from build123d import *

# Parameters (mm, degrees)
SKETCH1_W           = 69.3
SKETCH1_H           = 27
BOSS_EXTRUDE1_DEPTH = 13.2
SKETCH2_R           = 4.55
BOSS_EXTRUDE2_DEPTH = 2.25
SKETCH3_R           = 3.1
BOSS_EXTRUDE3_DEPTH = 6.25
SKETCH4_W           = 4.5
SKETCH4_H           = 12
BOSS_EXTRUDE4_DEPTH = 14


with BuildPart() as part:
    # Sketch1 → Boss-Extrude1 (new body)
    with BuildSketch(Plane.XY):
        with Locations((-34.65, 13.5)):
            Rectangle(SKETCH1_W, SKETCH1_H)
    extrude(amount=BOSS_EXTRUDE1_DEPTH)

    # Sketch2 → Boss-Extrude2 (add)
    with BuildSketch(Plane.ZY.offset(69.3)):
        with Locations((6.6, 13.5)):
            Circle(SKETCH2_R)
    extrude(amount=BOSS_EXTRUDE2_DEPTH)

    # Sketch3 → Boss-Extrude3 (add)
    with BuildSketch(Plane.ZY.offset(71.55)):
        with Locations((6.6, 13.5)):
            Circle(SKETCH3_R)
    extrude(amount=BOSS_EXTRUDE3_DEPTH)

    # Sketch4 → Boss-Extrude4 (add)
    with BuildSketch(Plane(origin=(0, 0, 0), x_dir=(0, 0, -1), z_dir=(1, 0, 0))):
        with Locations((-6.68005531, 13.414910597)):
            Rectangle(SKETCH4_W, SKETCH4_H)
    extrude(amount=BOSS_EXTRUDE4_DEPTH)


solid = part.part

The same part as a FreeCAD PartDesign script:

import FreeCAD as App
import Part
import Sketcher

V = App.Vector
Q = App.Units.Quantity

doc = App.newDocument("Part")
body = doc.addObject("PartDesign::Body", "Body")

# Sketch on XY plane
sketch1 = doc.addObject("Sketcher::SketchObject", "Sketch")
body.addObject(sketch1)
sketch1.AttachmentSupport = (doc.XY_Plane, [""])
sketch1.MapMode = "FlatFace"
sketch1.addGeometry([
    Part.LineSegment(V(-69, 27, 0), V(-69, 0, 0)),
    Part.LineSegment(V(-69, 0, 0), V(0, 0, 0)),
    Part.LineSegment(V(0, 0, 0), V(0, 27, 0)),
    Part.LineSegment(V(0, 27, 0), V(-69, 27, 0)),
], False)
sketch1.addConstraint([
    Sketcher.Constraint("Coincident", 0, 2, 1, 1),
    Sketcher.Constraint("Coincident", 1, 2, 2, 1),
    Sketcher.Constraint("Coincident", 2, 2, 3, 1),
    Sketcher.Constraint("Coincident", 3, 2, 0, 1),
    Sketcher.Constraint("Vertical", 0),
    Sketcher.Constraint("Horizontal", 1),
    Sketcher.Constraint("Vertical", 2),
    Sketcher.Constraint("Horizontal", 3),
    Sketcher.Constraint("Coincident", 1, 2, -1, 1),
    Sketcher.Constraint("DistanceY", 0, 2, 0, 1, Q("27 mm")),
    Sketcher.Constraint("DistanceX", 1, 1, 1, 2, Q("69.3 mm")),
])
pad1 = doc.addObject("PartDesign::Pad", "Pad")
body.addObject(pad1)
pad1.Profile = sketch1
pad1.Length = 13.2

# Sketch on YZ plane
sketch2 = doc.addObject("Sketcher::SketchObject", "Sketch001")
body.addObject(sketch2)
sketch2.AttachmentSupport = (doc.YZ_Plane, [""])
sketch2.MapMode = "FlatFace"
sketch2.AttachmentOffset = App.Placement(V(0, 0, -69.3), App.Rotation())
sketch2.addGeometry(Part.Circle(V(13.5, 6.6, 0), V(0, 0, 1), 4.5), False)
sketch2.addConstraint([
    Sketcher.Constraint("Diameter", 0, Q("9.1 mm")),
    Sketcher.Constraint("DistanceX", -1, 1, 0, 3, Q("13.5 mm")),
    Sketcher.Constraint("DistanceY", -1, 1, 0, 3, Q("6.6 mm")),
])
pad2 = doc.addObject("PartDesign::Pad", "Pad001")
body.addObject(pad2)
pad2.Profile = sketch2
pad2.Length = 2.25
pad2.Reversed = True

# Sketch on YZ plane
sketch3 = doc.addObject("Sketcher::SketchObject", "Sketch002")
body.addObject(sketch3)
sketch3.AttachmentSupport = (doc.YZ_Plane, [""])
sketch3.MapMode = "FlatFace"
sketch3.AttachmentOffset = App.Placement(V(0, 0, -71.55), App.Rotation())
sketch3.addGeometry(Part.Circle(V(13.5, 6.6, 0), V(0, 0, 1), 3.1), False)
sketch3.addConstraint([
    Sketcher.Constraint("Diameter", 0, Q("6.2 mm")),
    Sketcher.Constraint("DistanceX", -1, 1, 0, 3, Q("13.5 mm")),
    Sketcher.Constraint("DistanceY", -1, 1, 0, 3, Q("6.6 mm")),
])
pad3 = doc.addObject("PartDesign::Pad", "Pad002")
body.addObject(pad3)
pad3.Profile = sketch3
pad3.Length = 6.25
pad3.Reversed = True

# Sketch on YZ plane
sketch4 = doc.addObject("Sketcher::SketchObject", "Sketch003")
body.addObject(sketch4)
sketch4.AttachmentSupport = (doc.YZ_Plane, [""])
sketch4.MapMode = "FlatFace"
sketch4.addGeometry([
    Part.LineSegment(V(19.4, 8.9, 0), V(7.4, 8.9, 0)),
    Part.LineSegment(V(7.4, 8.9, 0), V(7.4, 4.4, 0)),
    Part.LineSegment(V(7.4, 4.4, 0), V(19.4, 4.4, 0)),
    Part.LineSegment(V(19.4, 4.4, 0), V(19.4, 8.9, 0)),
], False)
sketch4.addConstraint([
    Sketcher.Constraint("Coincident", 0, 2, 1, 1),
    Sketcher.Constraint("Coincident", 1, 2, 2, 1),
    Sketcher.Constraint("Coincident", 2, 2, 3, 1),
    Sketcher.Constraint("Coincident", 3, 2, 0, 1),
    Sketcher.Constraint("Horizontal", 0),
    Sketcher.Constraint("Vertical", 1),
    Sketcher.Constraint("Horizontal", 2),
    Sketcher.Constraint("Vertical", 3),
    Sketcher.Constraint("DistanceX", 0, 2, 0, 1, Q("12 mm")),
    Sketcher.Constraint("DistanceY", 1, 2, 1, 1, Q("4.5 mm")),
    Sketcher.Constraint("DistanceX", -1, 1, 0, 2, Q("7.414911 mm")),
    Sketcher.Constraint("DistanceY", -1, 1, 0, 2, Q("8.930055 mm")),
])
pad4 = doc.addObject("PartDesign::Pad", "Pad003")
body.addObject(pad4)
pad4.Profile = sketch4
pad4.Length = 14

doc.recompute()
